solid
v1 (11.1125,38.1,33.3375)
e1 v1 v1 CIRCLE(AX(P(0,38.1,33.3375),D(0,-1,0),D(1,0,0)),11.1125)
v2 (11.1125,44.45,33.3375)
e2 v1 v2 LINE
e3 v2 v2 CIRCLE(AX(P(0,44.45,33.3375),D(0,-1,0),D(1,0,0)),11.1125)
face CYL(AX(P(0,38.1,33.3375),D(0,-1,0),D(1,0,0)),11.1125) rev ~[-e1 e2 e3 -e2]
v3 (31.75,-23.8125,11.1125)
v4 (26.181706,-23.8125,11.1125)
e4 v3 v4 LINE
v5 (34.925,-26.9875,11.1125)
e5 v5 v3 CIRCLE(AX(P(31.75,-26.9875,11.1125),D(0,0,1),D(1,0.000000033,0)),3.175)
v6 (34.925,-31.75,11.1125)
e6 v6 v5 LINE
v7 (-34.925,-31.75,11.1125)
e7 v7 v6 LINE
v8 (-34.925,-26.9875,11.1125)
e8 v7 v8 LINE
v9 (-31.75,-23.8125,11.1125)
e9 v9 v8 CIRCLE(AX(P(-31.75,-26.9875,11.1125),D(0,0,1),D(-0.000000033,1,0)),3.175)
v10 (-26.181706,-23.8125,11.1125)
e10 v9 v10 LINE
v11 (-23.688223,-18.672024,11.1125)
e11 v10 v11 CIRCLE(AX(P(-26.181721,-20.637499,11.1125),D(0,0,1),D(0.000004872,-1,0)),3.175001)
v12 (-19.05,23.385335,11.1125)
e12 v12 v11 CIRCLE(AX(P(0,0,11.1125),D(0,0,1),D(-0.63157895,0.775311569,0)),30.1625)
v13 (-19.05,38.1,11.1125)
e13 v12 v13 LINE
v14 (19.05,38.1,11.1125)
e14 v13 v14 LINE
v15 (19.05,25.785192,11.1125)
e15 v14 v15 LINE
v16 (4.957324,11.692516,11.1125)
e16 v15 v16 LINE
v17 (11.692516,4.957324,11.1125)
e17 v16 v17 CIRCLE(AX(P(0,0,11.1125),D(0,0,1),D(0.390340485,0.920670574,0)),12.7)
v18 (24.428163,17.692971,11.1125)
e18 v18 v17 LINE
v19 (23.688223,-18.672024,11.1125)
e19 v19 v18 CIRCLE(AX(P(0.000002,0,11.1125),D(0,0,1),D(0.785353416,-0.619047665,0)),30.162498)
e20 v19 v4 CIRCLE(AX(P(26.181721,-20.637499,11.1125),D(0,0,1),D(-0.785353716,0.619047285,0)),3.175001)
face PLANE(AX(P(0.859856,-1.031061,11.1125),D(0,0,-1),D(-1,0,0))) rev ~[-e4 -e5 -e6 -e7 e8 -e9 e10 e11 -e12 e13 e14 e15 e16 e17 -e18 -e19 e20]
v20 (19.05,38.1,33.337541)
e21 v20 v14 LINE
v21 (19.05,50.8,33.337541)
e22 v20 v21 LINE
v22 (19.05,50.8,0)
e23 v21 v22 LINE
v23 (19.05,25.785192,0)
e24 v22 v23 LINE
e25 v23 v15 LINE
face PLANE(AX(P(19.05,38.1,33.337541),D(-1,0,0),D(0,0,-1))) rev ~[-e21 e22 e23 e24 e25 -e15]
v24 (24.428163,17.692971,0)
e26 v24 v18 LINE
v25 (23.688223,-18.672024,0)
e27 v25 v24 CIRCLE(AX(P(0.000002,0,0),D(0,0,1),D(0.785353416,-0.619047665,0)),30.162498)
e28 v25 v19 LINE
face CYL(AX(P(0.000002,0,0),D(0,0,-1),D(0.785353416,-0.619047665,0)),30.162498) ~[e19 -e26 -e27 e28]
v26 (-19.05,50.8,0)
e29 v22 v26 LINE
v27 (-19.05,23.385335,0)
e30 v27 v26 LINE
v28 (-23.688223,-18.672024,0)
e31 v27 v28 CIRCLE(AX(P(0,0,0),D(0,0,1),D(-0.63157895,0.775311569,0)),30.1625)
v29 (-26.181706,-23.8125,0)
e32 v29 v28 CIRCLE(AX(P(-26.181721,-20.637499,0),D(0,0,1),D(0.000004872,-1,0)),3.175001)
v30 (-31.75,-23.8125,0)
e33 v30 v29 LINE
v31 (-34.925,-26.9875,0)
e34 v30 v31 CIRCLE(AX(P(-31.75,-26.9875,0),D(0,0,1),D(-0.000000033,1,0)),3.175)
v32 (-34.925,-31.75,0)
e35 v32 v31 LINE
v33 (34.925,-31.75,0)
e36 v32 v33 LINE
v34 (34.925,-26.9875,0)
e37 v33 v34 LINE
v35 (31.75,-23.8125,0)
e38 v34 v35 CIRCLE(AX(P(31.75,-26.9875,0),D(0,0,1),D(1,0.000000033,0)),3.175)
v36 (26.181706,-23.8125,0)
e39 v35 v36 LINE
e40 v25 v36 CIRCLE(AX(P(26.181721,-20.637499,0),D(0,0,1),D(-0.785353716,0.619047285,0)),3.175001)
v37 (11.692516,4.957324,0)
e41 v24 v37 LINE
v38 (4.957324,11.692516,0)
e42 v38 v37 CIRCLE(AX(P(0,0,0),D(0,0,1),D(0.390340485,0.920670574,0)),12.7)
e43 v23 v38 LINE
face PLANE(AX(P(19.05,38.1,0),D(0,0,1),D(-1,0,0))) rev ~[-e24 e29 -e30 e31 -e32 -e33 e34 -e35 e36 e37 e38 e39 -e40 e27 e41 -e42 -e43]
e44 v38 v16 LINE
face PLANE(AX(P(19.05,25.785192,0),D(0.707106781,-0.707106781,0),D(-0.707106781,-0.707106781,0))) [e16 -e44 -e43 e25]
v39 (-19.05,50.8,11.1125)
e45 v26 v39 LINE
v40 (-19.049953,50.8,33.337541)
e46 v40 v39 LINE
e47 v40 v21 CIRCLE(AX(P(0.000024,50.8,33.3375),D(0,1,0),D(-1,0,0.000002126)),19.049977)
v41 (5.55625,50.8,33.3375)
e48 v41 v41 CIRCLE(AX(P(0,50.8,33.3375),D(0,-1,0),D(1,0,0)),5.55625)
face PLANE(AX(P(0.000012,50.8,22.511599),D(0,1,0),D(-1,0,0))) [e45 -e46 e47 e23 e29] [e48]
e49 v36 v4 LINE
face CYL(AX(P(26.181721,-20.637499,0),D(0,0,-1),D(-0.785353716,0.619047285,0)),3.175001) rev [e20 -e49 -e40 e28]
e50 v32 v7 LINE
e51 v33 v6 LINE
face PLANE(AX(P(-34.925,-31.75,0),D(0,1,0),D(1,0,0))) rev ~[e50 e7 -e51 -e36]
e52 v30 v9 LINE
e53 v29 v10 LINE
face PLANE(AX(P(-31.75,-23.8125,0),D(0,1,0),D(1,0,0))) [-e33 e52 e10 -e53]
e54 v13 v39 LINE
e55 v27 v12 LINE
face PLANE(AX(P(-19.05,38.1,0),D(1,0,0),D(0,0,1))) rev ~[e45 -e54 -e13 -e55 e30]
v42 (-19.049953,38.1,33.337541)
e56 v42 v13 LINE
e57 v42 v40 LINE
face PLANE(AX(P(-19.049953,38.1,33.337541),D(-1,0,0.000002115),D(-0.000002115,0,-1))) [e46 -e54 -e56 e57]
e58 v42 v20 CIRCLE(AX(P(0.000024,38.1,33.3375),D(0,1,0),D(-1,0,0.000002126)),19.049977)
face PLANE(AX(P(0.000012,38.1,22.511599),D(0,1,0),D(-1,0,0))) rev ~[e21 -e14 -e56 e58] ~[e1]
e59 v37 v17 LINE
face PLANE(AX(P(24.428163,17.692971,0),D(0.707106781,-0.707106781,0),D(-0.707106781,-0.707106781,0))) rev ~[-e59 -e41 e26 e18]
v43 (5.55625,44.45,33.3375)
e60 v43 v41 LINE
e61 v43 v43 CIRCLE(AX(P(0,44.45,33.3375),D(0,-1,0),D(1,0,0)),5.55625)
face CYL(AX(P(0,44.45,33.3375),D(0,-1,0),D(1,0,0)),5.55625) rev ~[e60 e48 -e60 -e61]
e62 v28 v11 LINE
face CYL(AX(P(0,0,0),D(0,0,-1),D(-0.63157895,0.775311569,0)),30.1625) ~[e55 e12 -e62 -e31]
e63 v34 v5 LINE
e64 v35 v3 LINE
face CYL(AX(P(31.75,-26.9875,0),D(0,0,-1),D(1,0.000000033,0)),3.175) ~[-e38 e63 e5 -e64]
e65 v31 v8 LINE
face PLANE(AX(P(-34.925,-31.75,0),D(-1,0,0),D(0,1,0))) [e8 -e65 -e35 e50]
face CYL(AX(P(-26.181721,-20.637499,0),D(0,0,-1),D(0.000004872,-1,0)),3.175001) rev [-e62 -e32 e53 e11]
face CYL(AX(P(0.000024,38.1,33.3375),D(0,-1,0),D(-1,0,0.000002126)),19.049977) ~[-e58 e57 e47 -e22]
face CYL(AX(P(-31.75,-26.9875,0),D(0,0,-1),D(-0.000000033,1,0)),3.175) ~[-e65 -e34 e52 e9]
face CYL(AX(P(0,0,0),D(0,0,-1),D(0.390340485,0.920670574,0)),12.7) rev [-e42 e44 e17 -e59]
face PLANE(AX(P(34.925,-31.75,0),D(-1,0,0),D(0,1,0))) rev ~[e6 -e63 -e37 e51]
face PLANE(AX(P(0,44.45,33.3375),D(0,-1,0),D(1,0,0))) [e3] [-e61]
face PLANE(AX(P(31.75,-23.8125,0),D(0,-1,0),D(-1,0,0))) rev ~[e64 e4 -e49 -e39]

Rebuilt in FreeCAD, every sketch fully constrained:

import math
import FreeCAD as App
import Part
import Sketcher
Q = App.Units.Quantity

doc = App.newDocument("Part")
body = doc.addObject("PartDesign::Body", "Body")

# Sketch on XY plane
sketch1 = doc.addObject("Sketcher::SketchObject", "Sketch")
body.addObject(sketch1)
sketch1.AttachmentSupport = (doc.XY_Plane, [""])
sketch1.MapMode = "FlatFace"
sketch1.addGeometry(Part.ArcOfCircle(Part.Circle(App.Vector(0, 0, 0), App.Vector(0, 0, 1), 12.7), math.radians(67), math.radians(383)), False)
sketch1.addGeometry(Part.LineSegment(App.Vector(5, 11.7, 0), App.Vector(19.1, 25.8, 0)), False)
sketch1.addGeometry(Part.LineSegment(App.Vector(19.1, 25.8, 0), App.Vector(19.1, 38.1, 0)), False)
sketch1.addGeometry(Part.LineSegment(App.Vector(19.1, 38.1, 0), App.Vector(-19.1, 38.1, 0)), False)
sketch1.addGeometry(Part.LineSegment(App.Vector(-19.1, 38.1, 0), App.Vector(-19.1, 23.4, 0)), False)
sketch1.addGeometry(Part.ArcOfCircle(Part.Circle(App.Vector(0, 0, 0), App.Vector(0, 0, 1), 30.2), math.radians(129), math.radians(218)), False)
sketch1.addGeometry(Part.ArcOfCircle(Part.Circle(App.Vector(-26.2, -20.6, 0), App.Vector(0, 0, 1), 3.2), math.radians(-90), math.radians(38)), False)
sketch1.addGeometry(Part.LineSegment(App.Vector(-26.2, -23.8, 0), App.Vector(-31.8, -23.8, 0)), False)
sketch1.addGeometry(Part.ArcOfCircle(Part.Circle(App.Vector(-31.7, -27, 0), App.Vector(0, 0, 1), 3.2), math.radians(90), math.radians(180)), False)
sketch1.addGeometry(Part.LineSegment(App.Vector(-34.9, -27, 0), App.Vector(-34.9, -31.8, 0)), False)
sketch1.addGeometry(Part.LineSegment(App.Vector(-34.9, -31.8, 0), App.Vector(34.9, -31.8, 0)), False)
sketch1.addGeometry(Part.LineSegment(App.Vector(34.9, -31.8, 0), App.Vector(34.9, -27, 0)), False)
sketch1.addGeometry(Part.ArcOfCircle(Part.Circle(App.Vector(31.7, -27, 0), App.Vector(0, 0, 1), 3.2), math.radians(0), math.radians(90)), False)
sketch1.addGeometry(Part.LineSegment(App.Vector(31.8, -23.8, 0), App.Vector(26.2, -23.8, 0)), False)
sketch1.addGeometry(Part.ArcOfCircle(Part.Circle(App.Vector(26.2, -20.6, 0), App.Vector(0, 0, 1), 3.2), math.radians(142), math.radians(270)), False)
sketch1.addGeometry(Part.ArcOfCircle(Part.Circle(App.Vector(0, 0, 0), App.Vector(0, 0, 1), 30.2), math.radians(-38), math.radians(36)), False)
sketch1.addGeometry(Part.LineSegment(App.Vector(24.4, 17.7, 0), App.Vector(11.7, 5, 0)), False)
sketch1.addConstraint(Sketcher.Constraint("Coincident", 0, 1, 1, 1))
sketch1.addConstraint(Sketcher.Constraint("Coincident", 1, 2, 2, 1))
sketch1.addConstraint(Sketcher.Constraint("Coincident", 2, 2, 3, 1))
sketch1.addConstraint(Sketcher.Constraint("Coincident", 3, 2, 4, 1))
sketch1.addConstraint(Sketcher.Constraint("Coincident", 4, 2, 5, 1))
sketch1.addConstraint(Sketcher.Constraint("Tangent", 5, 2, 6, 2))
sketch1.addConstraint(Sketcher.Constraint("Coincident", 6, 1, 7, 1))
sketch1.addConstraint(Sketcher.Constraint("Tangent", 7, 2, 8, 1))
sketch1.addConstraint(Sketcher.Constraint("Tangent", 8, 2, 9, 1))
sketch1.addConstraint(Sketcher.Constraint("Coincident", 9, 2, 10, 1))
sketch1.addConstraint(Sketcher.Constraint("Coincident", 10, 2, 11, 1))
sketch1.addConstraint(Sketcher.Constraint("Tangent", 11, 2, 12, 1))
sketch1.addConstraint(Sketcher.Constraint("Tangent", 12, 2, 13, 1))
sketch1.addConstraint(Sketcher.Constraint("Coincident", 13, 2, 14, 2))
sketch1.addConstraint(Sketcher.Constraint("Tangent", 14, 1, 15, 1))
sketch1.addConstraint(Sketcher.Constraint("Coincident", 15, 2, 16, 1))
sketch1.addConstraint(Sketcher.Constraint("Coincident", 16, 2, 0, 2))
sketch1.addConstraint(Sketcher.Constraint("Vertical", 2))
sketch1.addConstraint(Sketcher.Constraint("Horizontal", 3))
sketch1.addConstraint(Sketcher.Constraint("Vertical", 4))
sketch1.addConstraint(Sketcher.Constraint("Horizontal", 7))
sketch1.addConstraint(Sketcher.Constraint("Vertical", 9))
sketch1.addConstraint(Sketcher.Constraint("Horizontal", 10))
sketch1.addConstraint(Sketcher.Constraint("Vertical", 11))
sketch1.addConstraint(Sketcher.Constraint("Horizontal", 13))
sketch1.addConstraint(Sketcher.Constraint("Coincident", 0, 3, -1, 1))
sketch1.addConstraint(Sketcher.Constraint("Coincident", 5, 3, -1, 1))
sketch1.addConstraint(Sketcher.Constraint("Coincident", 15, 3, -1, 1))
sketch1.addConstraint(Sketcher.Constraint("Equal", 6, 8))
sketch1.addConstraint(Sketcher.Constraint("Equal", 8, 12))
sketch1.addConstraint(Sketcher.Constraint("Equal", 12, 14))
sketch1.addConstraint(Sketcher.Constraint("Symmetric", 8, 3, 12, 3, -2))
sketch1.addConstraint(Sketcher.Constraint("Parallel", 1, 16))
sketch1.addConstraint(Sketcher.Constraint("Equal", 7, 13))
sketch1.addConstraint(Sketcher.Constraint("Radius", 0, Q("0.5 in")))
sketch1.addConstraint(Sketcher.Constraint("DistanceX", 3, 2, 3, 1, Q("1.5 in")))
sketch1.addConstraint(Sketcher.Constraint("Angle", 1, Q("45 deg")))
sketch1.addConstraint(Sketcher.Constraint("Radius", 5, Q("1.1875 in")))
sketch1.addConstraint(Sketcher.Constraint("Radius", 6, Q("0.125 in")))
sketch1.addConstraint(Sketcher.Constraint("Radius", 15, Q("1.1874999 in")))
sketch1.addConstraint(Sketcher.Constraint("DistanceX", 10, 1, 10, 2, Q("2.75 in")))
sketch1.addConstraint(Sketcher.Constraint("DistanceY", -1, 1, 2, 2, Q("1.5 in")))
sketch1.addConstraint(Sketcher.Constraint("DistanceY", 9, 2, 9, 1, Q("0.1875 in")))
sketch1.addConstraint(Sketcher.Constraint("DistanceX", -1, 1, 1, 2, Q("0.75 in")))
sketch1.addConstraint(Sketcher.Constraint("DistanceY", 9, 2, -1, 1, Q("1.25 in")))
sketch1.addConstraint(Sketcher.Constraint("DistanceY", 2, 1, 2, 2, Q("12.314808 mm")))
sketch1.addConstraint(Sketcher.Constraint("DistanceX", 7, 2, 7, 1, Q("5.568294 mm")))
sketch1.addConstraint(Sketcher.Constraint("DistanceY", -1, 1, 15, 2, Q("17.692971 mm")))
pad1 = doc.addObject("PartDesign::Pad", "Pad")
body.addObject(pad1)
pad1.Profile = sketch1
pad1.Length = Q("0.4375 in")

# Sketch on XZ plane
sketch2 = doc.addObject("Sketcher::SketchObject", "Sketch001")
body.addObject(sketch2)
sketch2.AttachmentSupport = (doc.XZ_Plane, [""])
sketch2.MapMode = "FlatFace"
sketch2.AttachmentOffset = App.Placement(App.Vector(0, 0, -1.5 * 25.4), App.Rotation())
sketch2.addGeometry(Part.LineSegment(App.Vector(19, 0, 0), App.Vector(-19, 0, 0)), False)
sketch2.addGeometry(Part.LineSegment(App.Vector(-19, 0, 0), App.Vector(-19, 11, 0)), False)
sketch2.addGeometry(Part.LineSegment(App.Vector(-19, 11, 0), App.Vector(-19, 33, 0)), False)
sketch2.addGeometry(Part.ArcOfCircle(Part.Circle(App.Vector(0, 33, 0), App.Vector(0, 0, 1), 19), math.radians(0), math.radians(180)), False)
sketch2.addGeometry(Part.LineSegment(App.Vector(19, 33, 0), App.Vector(19, 0, 0)), False)
sketch2.addConstraint(Sketcher.Constraint("Coincident", 0, 2, 1, 1))
sketch2.addConstraint(Sketcher.Constraint("Coincident", 1, 2, 2, 1))
sketch2.addConstraint(Sketcher.Constraint("Tangent", 2, 2, 3, 2))
sketch2.addConstraint(Sketcher.Constraint("Coincident", 3, 1, 4, 1))
sketch2.addConstraint(Sketcher.Constraint("Coincident", 4, 2, 0, 1))
sketch2.addConstraint(Sketcher.Constraint("Horizontal", 0))
sketch2.addConstraint(Sketcher.Constraint("Vertical", 1))
sketch2.addConstraint(Sketcher.Constraint("Vertical", 4))
sketch2.addConstraint(Sketcher.Constraint("Symmetric", 0, 2, 4, 2, -1, 1))
sketch2.addConstraint(Sketcher.Constraint("Horizontal", 2, 2, 3, 1))
sketch2.addConstraint(Sketcher.Constraint("DistanceX", 0, 2, 0, 1, Q("1.5 in")))
sketch2.addConstraint(Sketcher.Constraint("DistanceY", 1, 1, 1, 2, Q("0.4375 in")))
sketch2.addConstraint(Sketcher.Constraint("DistanceY", -1, 1, 3, 3, Q("1.3125 in")))
sketch2.addConstraint(Sketcher.Constraint("Radius", 3, Q("19.049976 mm")))
pad2 = doc.addObject("PartDesign::Pad", "Pad001")
body.addObject(pad2)
pad2.Profile = sketch2
pad2.Length = Q("0.5 in")
pad2.Reversed = True

# Sketch on XZ plane
sketch3 = doc.addObject("Sketcher::SketchObject", "Sketch002")
body.addObject(sketch3)
sketch3.AttachmentSupport = (doc.XZ_Plane, [""])
sketch3.MapMode = "FlatFace"
sketch3.AttachmentOffset = App.Placement(App.Vector(0, 0, -1.5 * 25.4), App.Rotation())
sketch3.addGeometry(Part.Circle(App.Vector(0, 33, 0), App.Vector(0, 0, 1), 11), False)
sketch3.addConstraint(Sketcher.Constraint("PointOnObject", 0, 3, -2))
sketch3.addConstraint(Sketcher.Constraint("Diameter", 0, Q("0.875 in")))
sketch3.addConstraint(Sketcher.Constraint("DistanceY", -1, 1, 0, 3, Q("1.3125 in")))
pocket1 = doc.addObject("PartDesign::Pocket", "Pocket")
body.addObject(pocket1)
pocket1.Profile = sketch3
pocket1.Length = Q("0.25 in")

# Sketch on XZ plane
sketch4 = doc.addObject("Sketcher::SketchObject", "Sketch003")
body.addObject(sketch4)
sketch4.AttachmentSupport = (doc.XZ_Plane, [""])
sketch4.MapMode = "FlatFace"
sketch4.AttachmentOffset = App.Placement(App.Vector(0, 0, -1.75 * 25.4), App.Rotation())
sketch4.addGeometry(Part.Circle(App.Vector(0, 33, 0), App.Vector(0, 0, 1), 6), False)
sketch4.addConstraint(Sketcher.Constraint("PointOnObject", 0, 3, -2))
sketch4.addConstraint(Sketcher.Constraint("Diameter", 0, Q("0.4375 in")))
sketch4.addConstraint(Sketcher.Constraint("DistanceY", -1, 1, 0, 3, Q("1.3125 in")))
pocket2 = doc.addObject("PartDesign::Pocket", "Pocket001")
body.addObject(pocket2)
pocket2.Profile = sketch4
pocket2.Type = "ThroughAll"

doc.recompute()
